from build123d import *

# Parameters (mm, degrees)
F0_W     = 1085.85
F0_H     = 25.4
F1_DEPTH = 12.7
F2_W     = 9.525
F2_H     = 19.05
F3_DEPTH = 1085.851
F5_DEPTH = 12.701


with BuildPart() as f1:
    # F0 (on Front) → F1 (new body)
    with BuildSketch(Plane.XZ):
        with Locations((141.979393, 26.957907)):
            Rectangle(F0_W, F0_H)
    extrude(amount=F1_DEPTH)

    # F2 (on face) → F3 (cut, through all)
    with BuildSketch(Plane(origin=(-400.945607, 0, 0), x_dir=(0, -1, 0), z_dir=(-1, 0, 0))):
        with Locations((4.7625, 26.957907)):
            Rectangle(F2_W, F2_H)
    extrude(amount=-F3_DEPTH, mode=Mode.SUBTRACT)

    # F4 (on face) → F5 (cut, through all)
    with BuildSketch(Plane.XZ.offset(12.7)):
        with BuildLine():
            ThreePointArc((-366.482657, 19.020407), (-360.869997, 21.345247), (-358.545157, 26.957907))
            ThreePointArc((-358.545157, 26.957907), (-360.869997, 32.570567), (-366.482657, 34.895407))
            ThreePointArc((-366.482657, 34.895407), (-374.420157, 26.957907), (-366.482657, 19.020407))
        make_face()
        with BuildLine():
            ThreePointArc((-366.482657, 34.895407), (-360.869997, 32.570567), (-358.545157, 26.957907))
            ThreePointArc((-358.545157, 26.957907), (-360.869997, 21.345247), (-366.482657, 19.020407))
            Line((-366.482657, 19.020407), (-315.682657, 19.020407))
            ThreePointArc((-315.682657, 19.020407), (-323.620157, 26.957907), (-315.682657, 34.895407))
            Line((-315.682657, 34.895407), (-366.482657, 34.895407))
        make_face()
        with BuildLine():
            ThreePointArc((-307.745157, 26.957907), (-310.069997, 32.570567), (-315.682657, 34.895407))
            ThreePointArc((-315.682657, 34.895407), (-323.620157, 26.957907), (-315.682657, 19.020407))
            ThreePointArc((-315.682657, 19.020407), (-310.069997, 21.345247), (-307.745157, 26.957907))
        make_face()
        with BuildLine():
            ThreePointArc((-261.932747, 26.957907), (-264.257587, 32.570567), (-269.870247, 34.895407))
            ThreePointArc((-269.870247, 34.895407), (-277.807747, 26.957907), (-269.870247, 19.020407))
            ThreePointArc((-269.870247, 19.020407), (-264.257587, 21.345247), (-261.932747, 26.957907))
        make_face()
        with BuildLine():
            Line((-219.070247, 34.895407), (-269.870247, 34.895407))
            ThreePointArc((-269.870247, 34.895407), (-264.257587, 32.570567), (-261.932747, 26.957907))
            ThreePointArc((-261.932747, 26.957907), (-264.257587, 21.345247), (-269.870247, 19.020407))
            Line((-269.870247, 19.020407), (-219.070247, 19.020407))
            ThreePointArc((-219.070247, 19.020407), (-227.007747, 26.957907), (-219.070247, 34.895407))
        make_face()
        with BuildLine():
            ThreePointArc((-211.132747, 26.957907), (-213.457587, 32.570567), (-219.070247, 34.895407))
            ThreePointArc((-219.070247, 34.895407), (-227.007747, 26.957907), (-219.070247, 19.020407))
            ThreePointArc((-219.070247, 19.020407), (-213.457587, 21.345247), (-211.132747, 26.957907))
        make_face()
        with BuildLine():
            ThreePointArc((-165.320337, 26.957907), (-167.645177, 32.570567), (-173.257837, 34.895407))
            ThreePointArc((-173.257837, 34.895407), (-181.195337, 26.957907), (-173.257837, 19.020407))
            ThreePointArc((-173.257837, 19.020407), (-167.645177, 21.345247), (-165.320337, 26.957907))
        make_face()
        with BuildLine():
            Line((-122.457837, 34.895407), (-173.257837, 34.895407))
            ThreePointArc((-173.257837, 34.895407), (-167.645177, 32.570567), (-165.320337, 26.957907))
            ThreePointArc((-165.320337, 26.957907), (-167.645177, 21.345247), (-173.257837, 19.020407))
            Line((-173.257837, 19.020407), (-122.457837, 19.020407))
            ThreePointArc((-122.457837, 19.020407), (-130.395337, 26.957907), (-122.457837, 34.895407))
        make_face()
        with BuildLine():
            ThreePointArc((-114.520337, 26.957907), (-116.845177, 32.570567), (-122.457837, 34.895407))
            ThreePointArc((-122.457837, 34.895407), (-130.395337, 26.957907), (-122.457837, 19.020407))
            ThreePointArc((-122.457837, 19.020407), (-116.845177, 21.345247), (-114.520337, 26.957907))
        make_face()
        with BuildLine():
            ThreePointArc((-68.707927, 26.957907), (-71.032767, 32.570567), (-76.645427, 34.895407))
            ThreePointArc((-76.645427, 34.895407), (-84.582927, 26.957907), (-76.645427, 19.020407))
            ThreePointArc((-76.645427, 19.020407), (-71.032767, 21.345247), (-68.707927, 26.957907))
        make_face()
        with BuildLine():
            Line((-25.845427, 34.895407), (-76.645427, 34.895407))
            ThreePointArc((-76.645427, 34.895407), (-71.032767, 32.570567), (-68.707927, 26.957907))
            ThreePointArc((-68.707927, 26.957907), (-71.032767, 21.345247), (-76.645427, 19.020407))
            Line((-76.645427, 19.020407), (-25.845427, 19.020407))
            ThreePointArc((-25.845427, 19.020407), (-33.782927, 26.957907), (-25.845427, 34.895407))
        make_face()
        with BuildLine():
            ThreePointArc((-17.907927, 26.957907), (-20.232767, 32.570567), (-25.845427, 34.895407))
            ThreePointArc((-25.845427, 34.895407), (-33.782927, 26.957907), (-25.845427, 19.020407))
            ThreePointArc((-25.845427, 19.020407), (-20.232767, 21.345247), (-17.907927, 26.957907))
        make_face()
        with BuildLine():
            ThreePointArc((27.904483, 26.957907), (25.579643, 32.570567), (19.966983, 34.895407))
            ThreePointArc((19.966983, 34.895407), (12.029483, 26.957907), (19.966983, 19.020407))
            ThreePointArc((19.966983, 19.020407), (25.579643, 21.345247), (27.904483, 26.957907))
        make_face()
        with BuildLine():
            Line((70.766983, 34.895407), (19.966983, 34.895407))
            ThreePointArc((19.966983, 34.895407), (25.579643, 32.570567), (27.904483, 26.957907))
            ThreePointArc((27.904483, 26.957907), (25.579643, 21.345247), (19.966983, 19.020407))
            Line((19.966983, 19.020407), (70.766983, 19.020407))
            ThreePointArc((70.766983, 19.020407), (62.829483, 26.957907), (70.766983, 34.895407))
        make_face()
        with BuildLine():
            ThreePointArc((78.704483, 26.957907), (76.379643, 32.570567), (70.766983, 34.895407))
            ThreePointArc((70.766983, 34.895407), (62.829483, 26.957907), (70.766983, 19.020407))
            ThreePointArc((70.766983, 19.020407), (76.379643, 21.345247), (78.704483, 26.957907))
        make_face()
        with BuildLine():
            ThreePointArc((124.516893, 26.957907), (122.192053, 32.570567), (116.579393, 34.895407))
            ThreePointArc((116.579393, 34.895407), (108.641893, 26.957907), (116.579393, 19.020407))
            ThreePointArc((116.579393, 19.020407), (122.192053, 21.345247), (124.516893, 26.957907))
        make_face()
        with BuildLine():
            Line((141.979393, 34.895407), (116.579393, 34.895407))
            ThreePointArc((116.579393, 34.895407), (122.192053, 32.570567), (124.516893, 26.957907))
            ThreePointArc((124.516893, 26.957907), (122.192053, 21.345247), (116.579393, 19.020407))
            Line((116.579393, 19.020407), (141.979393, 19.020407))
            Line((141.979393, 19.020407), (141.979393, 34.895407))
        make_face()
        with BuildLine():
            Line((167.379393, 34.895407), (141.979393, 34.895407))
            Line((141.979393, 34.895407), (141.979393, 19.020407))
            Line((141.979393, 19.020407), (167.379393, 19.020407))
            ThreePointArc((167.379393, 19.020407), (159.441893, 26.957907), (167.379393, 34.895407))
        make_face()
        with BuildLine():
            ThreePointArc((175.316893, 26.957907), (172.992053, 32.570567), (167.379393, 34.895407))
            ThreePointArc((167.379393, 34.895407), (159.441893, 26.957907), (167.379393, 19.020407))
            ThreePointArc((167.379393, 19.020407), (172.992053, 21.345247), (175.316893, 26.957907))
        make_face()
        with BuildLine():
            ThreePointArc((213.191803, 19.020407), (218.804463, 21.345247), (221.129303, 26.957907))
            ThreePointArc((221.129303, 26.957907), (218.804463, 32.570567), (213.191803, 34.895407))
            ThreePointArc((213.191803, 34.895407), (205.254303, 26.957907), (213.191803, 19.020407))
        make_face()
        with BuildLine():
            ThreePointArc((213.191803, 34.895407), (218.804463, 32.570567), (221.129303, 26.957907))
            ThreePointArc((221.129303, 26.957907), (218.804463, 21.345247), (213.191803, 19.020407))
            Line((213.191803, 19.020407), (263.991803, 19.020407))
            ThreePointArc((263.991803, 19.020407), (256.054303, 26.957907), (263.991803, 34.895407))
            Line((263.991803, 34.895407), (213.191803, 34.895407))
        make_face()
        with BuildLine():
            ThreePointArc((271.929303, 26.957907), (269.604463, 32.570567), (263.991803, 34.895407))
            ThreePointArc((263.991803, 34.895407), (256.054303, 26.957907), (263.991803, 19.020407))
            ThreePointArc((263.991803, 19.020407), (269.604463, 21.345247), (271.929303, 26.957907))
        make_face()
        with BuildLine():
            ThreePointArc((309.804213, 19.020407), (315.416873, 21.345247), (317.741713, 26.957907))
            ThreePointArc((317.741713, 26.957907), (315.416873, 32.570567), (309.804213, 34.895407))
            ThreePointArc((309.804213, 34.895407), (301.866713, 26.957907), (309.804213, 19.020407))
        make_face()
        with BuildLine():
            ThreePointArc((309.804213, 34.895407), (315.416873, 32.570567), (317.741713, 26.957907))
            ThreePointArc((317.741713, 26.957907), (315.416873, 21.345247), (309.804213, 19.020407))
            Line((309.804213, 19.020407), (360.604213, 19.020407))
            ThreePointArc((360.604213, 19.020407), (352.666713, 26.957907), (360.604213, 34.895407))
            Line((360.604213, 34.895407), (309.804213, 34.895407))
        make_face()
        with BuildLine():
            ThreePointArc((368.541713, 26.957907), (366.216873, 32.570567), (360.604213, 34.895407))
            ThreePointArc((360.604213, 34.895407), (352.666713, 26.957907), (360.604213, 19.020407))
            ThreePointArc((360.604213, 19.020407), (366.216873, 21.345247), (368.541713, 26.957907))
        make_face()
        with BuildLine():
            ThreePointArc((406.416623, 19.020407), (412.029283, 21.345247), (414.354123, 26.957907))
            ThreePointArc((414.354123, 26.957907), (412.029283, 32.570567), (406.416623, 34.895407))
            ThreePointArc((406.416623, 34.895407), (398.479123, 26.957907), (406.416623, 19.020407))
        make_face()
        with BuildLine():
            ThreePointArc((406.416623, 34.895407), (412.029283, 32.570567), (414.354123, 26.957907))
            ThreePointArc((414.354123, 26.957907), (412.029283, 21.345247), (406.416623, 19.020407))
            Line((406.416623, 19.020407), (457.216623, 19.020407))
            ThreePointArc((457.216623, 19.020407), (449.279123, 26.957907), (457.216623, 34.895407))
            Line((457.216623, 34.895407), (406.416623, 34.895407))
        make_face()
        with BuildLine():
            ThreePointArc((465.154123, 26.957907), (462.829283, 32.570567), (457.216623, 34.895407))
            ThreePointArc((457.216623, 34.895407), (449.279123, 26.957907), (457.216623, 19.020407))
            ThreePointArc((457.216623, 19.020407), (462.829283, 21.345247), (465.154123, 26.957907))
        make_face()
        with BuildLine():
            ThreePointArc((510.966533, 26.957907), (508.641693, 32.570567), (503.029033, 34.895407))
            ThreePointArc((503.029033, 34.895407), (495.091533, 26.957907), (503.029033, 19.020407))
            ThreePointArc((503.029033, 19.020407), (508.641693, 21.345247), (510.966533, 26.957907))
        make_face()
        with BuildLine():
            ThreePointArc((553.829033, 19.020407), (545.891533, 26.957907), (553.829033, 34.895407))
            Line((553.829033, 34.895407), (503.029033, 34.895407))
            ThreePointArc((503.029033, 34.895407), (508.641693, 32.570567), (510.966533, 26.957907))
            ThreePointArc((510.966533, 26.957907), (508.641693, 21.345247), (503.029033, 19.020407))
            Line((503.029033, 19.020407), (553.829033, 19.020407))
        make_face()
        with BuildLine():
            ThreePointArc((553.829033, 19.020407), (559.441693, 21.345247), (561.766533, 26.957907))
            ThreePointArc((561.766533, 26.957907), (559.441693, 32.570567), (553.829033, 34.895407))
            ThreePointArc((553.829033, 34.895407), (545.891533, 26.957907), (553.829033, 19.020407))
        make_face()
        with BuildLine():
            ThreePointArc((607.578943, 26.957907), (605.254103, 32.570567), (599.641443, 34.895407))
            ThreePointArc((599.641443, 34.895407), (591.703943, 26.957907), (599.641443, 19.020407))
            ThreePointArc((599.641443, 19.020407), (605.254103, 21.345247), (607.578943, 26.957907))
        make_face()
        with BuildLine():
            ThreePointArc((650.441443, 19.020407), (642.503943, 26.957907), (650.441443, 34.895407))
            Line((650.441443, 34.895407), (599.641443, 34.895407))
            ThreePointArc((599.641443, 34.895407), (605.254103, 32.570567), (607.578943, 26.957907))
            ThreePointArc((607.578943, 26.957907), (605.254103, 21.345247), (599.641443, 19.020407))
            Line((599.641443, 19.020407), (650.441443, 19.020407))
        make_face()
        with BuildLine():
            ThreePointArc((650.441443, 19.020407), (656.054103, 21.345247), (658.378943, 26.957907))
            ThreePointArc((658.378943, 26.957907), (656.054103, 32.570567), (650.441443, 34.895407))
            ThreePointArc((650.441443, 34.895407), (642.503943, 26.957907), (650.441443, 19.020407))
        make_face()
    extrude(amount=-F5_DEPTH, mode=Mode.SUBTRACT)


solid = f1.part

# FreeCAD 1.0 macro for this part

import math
import FreeCAD as App
import Part
import Sketcher
from FreeCAD import Vector
Q = App.Units.Quantity


def add_polygon(sketch, points):
    """Adds a closed chain of lines whose ends are joined by coincident constraints."""
    first, n = sketch.GeometryCount, len(points)
    for a, b in zip(points, points[1:] + points[:1]):
        sketch.addGeometry(Part.LineSegment(App.Vector(*a, 0), App.Vector(*b, 0)), False)
    for i in range(n):
        sketch.addConstraint(Sketcher.Constraint("Coincident", first + i, 2, first + (i + 1) % n, 1))

doc = App.newDocument("Part")
body = doc.addObject("PartDesign::Body", "Body")

# Sketch on XZ plane
sketch1 = body.newObject("Sketcher::SketchObject", "Sketch")
sketch1.AttachmentSupport = (doc.getObject("XZ_Plane"), [""])
sketch1.MapMode = "FlatFace"
add_polygon(sketch1, [(-400.945607, 39.657907), (-400.945607, 14.257907), (684.904393, 14.257907), (684.904393, 39.657907)])  # lines 0-3
sketch1.addConstraint([
    Sketcher.Constraint("Vertical", 0),
    Sketcher.Constraint("Horizontal", 1),
    Sketcher.Constraint("Vertical", 2),
    Sketcher.Constraint("Horizontal", 3),
    Sketcher.Constraint("DistanceY", 0, 2, 0, 1, Q("1 in")),
    Sketcher.Constraint("DistanceX", 1, 1, 1, 2, Q("42.75 in")),
    Sketcher.Constraint("DistanceX", 0, 2, -1, 1, 400.945607),
    Sketcher.Constraint("DistanceY", -1, 1, 0, 2, 14.257907),
])
pad1 = body.newObject("PartDesign::Pad", "Pad")
pad1.Profile = sketch1
pad1.Length = Q("0.5 in")

# Sketch on YZ plane
sketch2 = body.newObject("Sketcher::SketchObject", "Sketch001")
sketch2.AttachmentSupport = (doc.getObject("YZ_Plane"), [""])
sketch2.MapMode = "FlatFace"
sketch2.AttachmentOffset = App.Placement(Vector(0, 0, -400.945607), App.Rotation())
add_polygon(sketch2, [(0, 36.482907), (0, 17.432907), (-9.525, 17.432907), (-9.525, 36.482907)])  # lines 0-3
sketch2.addConstraint([
    Sketcher.Constraint("Vertical", 0),
    Sketcher.Constraint("Horizontal", 1),
    Sketcher.Constraint("Vertical", 2),
    Sketcher.Constraint("Horizontal", 3),
    Sketcher.Constraint("PointOnObject", 0, 2, -2),
    Sketcher.Constraint("DistanceY", 0, 2, 0, 1, Q("0.75 in")),
    Sketcher.Constraint("DistanceX", 1, 2, 1, 1, Q("0.375 in")),
    Sketcher.Constraint("DistanceY", -1, 1, 0, 2, 17.432907),
])
pocket1 = body.newObject("PartDesign::Pocket", "Pocket")
pocket1.Profile = sketch2
pocket1.Type = "ThroughAll"
pocket1.Reversed = True

# Sketch on XZ plane
sketch3 = body.newObject("Sketcher::SketchObject", "Sketch002")
sketch3.AttachmentSupport = (doc.getObject("XZ_Plane"), [""])
sketch3.MapMode = "FlatFace"
sketch3.AttachmentOffset = App.Placement(Vector(0, 0, 0.5 * 25.4), App.Rotation())
sketch3.addGeometry([
    Part.ArcOfCircle(Part.Circle(Vector(-366.482657, 26.957907, 0), Vector(0, 0, 1), 7.9375), math.radians(90), math.radians(270)),  # 0
    Part.LineSegment(Vector(-366.482657, 19.020407, 0), Vector(-315.682657, 19.020407, 0)),  # 1
    Part.ArcOfCircle(Part.Circle(Vector(-315.682657, 26.957907, 0), Vector(0, 0, 1), 7.9375), math.radians(-89.999998), math.radians(-0.000002)),  # 2
    Part.ArcOfCircle(Part.Circle(Vector(-315.682657, 26.957907, 0), Vector(0, 0, 1), 7.9375), math.radians(0.000002), math.radians(89.999998)),  # 3
    Part.LineSegment(Vector(-315.682657, 34.895407, 0), Vector(-366.482657, 34.895407, 0)),  # 4
    Part.ArcOfCircle(Part.Circle(Vector(-269.870247, 26.957907, 0), Vector(0, 0, 1), 7.9375), math.radians(90), math.radians(270)),  # 5
    Part.LineSegment(Vector(-269.870247, 19.020407, 0), Vector(-219.070247, 19.020407, 0)),  # 6
    Part.ArcOfCircle(Part.Circle(Vector(-219.070247, 26.957907, 0), Vector(0, 0, 1), 7.9375), math.radians(-89.999998), math.radians(-0.000002)),  # 7
    Part.ArcOfCircle(Part.Circle(Vector(-219.070247, 26.957907, 0), Vector(0, 0, 1), 7.9375), math.radians(0.000002), math.radians(89.999998)),  # 8
    Part.LineSegment(Vector(-219.070247, 34.895407, 0), Vector(-269.870247, 34.895407, 0)),  # 9
    Part.ArcOfCircle(Part.Circle(Vector(-173.257837, 26.957907, 0), Vector(0, 0, 1), 7.9375), math.radians(90), math.radians(270)),  # 10
    Part.LineSegment(Vector(-173.257837, 19.020407, 0), Vector(-122.457837, 19.020407, 0)),  # 11
    Part.ArcOfCircle(Part.Circle(Vector(-122.457837, 26.957907, 0), Vector(0, 0, 1), 7.9375), math.radians(-89.999998), math.radians(-0.000002)),  # 12
    Part.ArcOfCircle(Part.Circle(Vector(-122.457837, 26.957907, 0), Vector(0, 0, 1), 7.9375), math.radians(0.000002), math.radians(89.999998)),  # 13
    Part.LineSegment(Vector(-122.457837, 34.895407, 0), Vector(-173.257837, 34.895407, 0)),  # 14
    Part.ArcOfCircle(Part.Circle(Vector(-76.645427, 26.957907, 0), Vector(0, 0, 1), 7.9375), math.radians(90), math.radians(270)),  # 15
    Part.LineSegment(Vector(-76.645427, 19.020407, 0), Vector(-25.845427, 19.020407, 0)),  # 16
    Part.ArcOfCircle(Part.Circle(Vector(-25.845427, 26.957907, 0), Vector(0, 0, 1), 7.9375), math.radians(-89.999998), math.radians(-0.000002)),  # 17
    Part.ArcOfCircle(Part.Circle(Vector(-25.845427, 26.957907, 0), Vector(0, 0, 1), 7.9375), math.radians(0.000002), math.radians(89.999998)),  # 18
    Part.LineSegment(Vector(-25.845427, 34.895407, 0), Vector(-76.645427, 34.895407, 0)),  # 19
    Part.ArcOfCircle(Part.Circle(Vector(19.966983, 26.957907, 0), Vector(0, 0, 1), 7.9375), math.radians(90), math.radians(270)),  # 20
    Part.LineSegment(Vector(19.966983, 19.020407, 0), Vector(70.766983, 19.020407, 0)),  # 21
    Part.ArcOfCircle(Part.Circle(Vector(70.766983, 26.957907, 0), Vector(0, 0, 1), 7.9375), math.radians(-89.999998), math.radians(-0.000002)),  # 22
    Part.ArcOfCircle(Part.Circle(Vector(70.766983, 26.957907, 0), Vector(0, 0, 1), 7.9375), math.radians(0.000002), math.radians(89.999998)),  # 23
    Part.LineSegment(Vector(70.766983, 34.895407, 0), Vector(19.966983, 34.895407, 0)),  # 24
    Part.ArcOfCircle(Part.Circle(Vector(116.579393, 26.957907, 0), Vector(0, 0, 1), 7.9375), math.radians(90), math.radians(270)),  # 25
    Part.LineSegment(Vector(116.579393, 19.020407, 0), Vector(167.379393, 19.020407, 0)),  # 26
    Part.ArcOfCircle(Part.Circle(Vector(167.379393, 26.957907, 0), Vector(0, 0, 1), 7.9375), math.radians(-89.999998), math.radians(-0.000002)),  # 27
    Part.ArcOfCircle(Part.Circle(Vector(167.379393, 26.957907, 0), Vector(0, 0, 1), 7.9375), math.radians(0.000002), math.radians(89.999998)),  # 28
    Part.LineSegment(Vector(167.379393, 34.895407, 0), Vector(116.579393, 34.895407, 0)),  # 29
    Part.ArcOfCircle(Part.Circle(Vector(213.191803, 26.957907, 0), Vector(0, 0, 1), 7.9375), math.radians(90), math.radians(270)),  # 30
    Part.LineSegment(Vector(213.191803, 19.020407, 0), Vector(263.991803, 19.020407, 0)),  # 31
    Part.ArcOfCircle(Part.Circle(Vector(263.991803, 26.957907, 0), Vector(0, 0, 1), 7.9375), math.radians(-89.999998), math.radians(-0.000002)),  # 32
    Part.ArcOfCircle(Part.Circle(Vector(263.991803, 26.957907, 0), Vector(0, 0, 1), 7.9375), math.radians(0.000002), math.radians(89.999998)),  # 33
    Part.LineSegment(Vector(263.991803, 34.895407, 0), Vector(213.191803, 34.895407, 0)),  # 34
    Part.ArcOfCircle(Part.Circle(Vector(309.804213, 26.957907, 0), Vector(0, 0, 1), 7.9375), math.radians(90), math.radians(270)),  # 35
    Part.LineSegment(Vector(309.804213, 19.020407, 0), Vector(360.604213, 19.020407, 0)),  # 36
    Part.ArcOfCircle(Part.Circle(Vector(360.604213, 26.957907, 0), Vector(0, 0, 1), 7.9375), math.radians(-89.999998), math.radians(-0.000002)),  # 37
    Part.ArcOfCircle(Part.Circle(Vector(360.604213, 26.957907, 0), Vector(0, 0, 1), 7.9375), math.radians(0.000002), math.radians(89.999998)),  # 38
    Part.LineSegment(Vector(360.604213, 34.895407, 0), Vector(309.804213, 34.895407, 0)),  # 39
    Part.ArcOfCircle(Part.Circle(Vector(406.416623, 26.957907, 0), Vector(0, 0, 1), 7.9375), math.radians(90), math.radians(270)),  # 40
    Part.LineSegment(Vector(406.416623, 19.020407, 0), Vector(457.216623, 19.020407, 0)),  # 41
    Part.ArcOfCircle(Part.Circle(Vector(457.216623, 26.957907, 0), Vector(0, 0, 1), 7.9375), math.radians(-89.999998), math.radians(-0.000002)),  # 42
    Part.ArcOfCircle(Part.Circle(Vector(457.216623, 26.957907, 0), Vector(0, 0, 1), 7.9375), math.radians(0.000002), math.radians(89.999998)),  # 43
    Part.LineSegment(Vector(457.216623, 34.895407, 0), Vector(406.416623, 34.895407, 0)),  # 44
    Part.ArcOfCircle(Part.Circle(Vector(503.029033, 26.957907, 0), Vector(0, 0, 1), 7.9375), math.radians(90), math.radians(270)),  # 45
    Part.LineSegment(Vector(503.029033, 19.020407, 0), Vector(553.829033, 19.020407, 0)),  # 46
    Part.ArcOfCircle(Part.Circle(Vector(553.829033, 26.957907, 0), Vector(0, 0, 1), 7.9375), math.radians(-89.999998), math.radians(-0.000002)),  # 47
    Part.ArcOfCircle(Part.Circle(Vector(553.829033, 26.957907, 0), Vector(0, 0, 1), 7.9375), math.radians(0.000002), math.radians(89.999998)),  # 48
    Part.LineSegment(Vector(553.829033, 34.895407, 0), Vector(503.029033, 34.895407, 0)),  # 49
    Part.ArcOfCircle(Part.Circle(Vector(599.641443, 26.957907, 0), Vector(0, 0, 1), 7.9375), math.radians(90), math.radians(270)),  # 50
    Part.LineSegment(Vector(599.641443, 19.020407, 0), Vector(650.441443, 19.020407, 0)),  # 51
    Part.ArcOfCircle(Part.Circle(Vector(650.441443, 26.957907, 0), Vector(0, 0, 1), 7.9375), math.radians(-89.999998), math.radians(-0.000002)),  # 52
    Part.ArcOfCircle(Part.Circle(Vector(650.441443, 26.957907, 0), Vector(0, 0, 1), 7.9375), math.radians(0.000002), math.radians(89.999998)),  # 53
    Part.LineSegment(Vector(650.441443, 34.895407, 0), Vector(599.641443, 34.895407, 0)),  # 54
], False)
sketch3.addConstraint([
    Sketcher.Constraint("Tangent", 0, 2, 1, 1),
    Sketcher.Constraint("Tangent", 1, 2, 2, 1),
    Sketcher.Constraint("Tangent", 2, 2, 3, 1),
    Sketcher.Constraint("Tangent", 3, 2, 4, 1),
    Sketcher.Constraint("Tangent", 4, 2, 0, 1),
    Sketcher.Constraint("Tangent", 5, 2, 6, 1),
    Sketcher.Constraint("Tangent", 6, 2, 7, 1),
    Sketcher.Constraint("Tangent", 7, 2, 8, 1),
    Sketcher.Constraint("Tangent", 8, 2, 9, 1),
    Sketcher.Constraint("Tangent", 9, 2, 5, 1),
    Sketcher.Constraint("Tangent", 10, 2, 11, 1),
    Sketcher.Constraint("Tangent", 11, 2, 12, 1),
    Sketcher.Constraint("Tangent", 12, 2, 13, 1),
    Sketcher.Constraint("Tangent", 13, 2, 14, 1),
    Sketcher.Constraint("Tangent", 14, 2, 10, 1),
    Sketcher.Constraint("Tangent", 15, 2, 16, 1),
    Sketcher.Constraint("Tangent", 16, 2, 17, 1),
    Sketcher.Constraint("Tangent", 17, 2, 18, 1),
    Sketcher.Constraint("Tangent", 18, 2, 19, 1),
    Sketcher.Constraint("Tangent", 19, 2, 15, 1),
    Sketcher.Constraint("Tangent", 20, 2, 21, 1),
    Sketcher.Constraint("Tangent", 21, 2, 22, 1),
    Sketcher.Constraint("Tangent", 22, 2, 23, 1),
    Sketcher.Constraint("Tangent", 23, 2, 24, 1),
    Sketcher.Constraint("Tangent", 24, 2, 20, 1),
    Sketcher.Constraint("Tangent", 25, 2, 26, 1),
    Sketcher.Constraint("Tangent", 26, 2, 27, 1),
    Sketcher.Constraint("Tangent", 27, 2, 28, 1),
    Sketcher.Constraint("Tangent", 28, 2, 29, 1),
    Sketcher.Constraint("Tangent", 29, 2, 25, 1),
    Sketcher.Constraint("Tangent", 30, 2, 31, 1),
    Sketcher.Constraint("Tangent", 31, 2, 32, 1),
    Sketcher.Constraint("Tangent", 32, 2, 33, 1),
    Sketcher.Constraint("Tangent", 33, 2, 34, 1),
    Sketcher.Constraint("Tangent", 34, 2, 30, 1),
    Sketcher.Constraint("Tangent", 35, 2, 36, 1),
    Sketcher.Constraint("Tangent", 36, 2, 37, 1),
    Sketcher.Constraint("Tangent", 37, 2, 38, 1),
    Sketcher.Constraint("Tangent", 38, 2, 39, 1),
    Sketcher.Constraint("Tangent", 39, 2, 35, 1),
    Sketcher.Constraint("Tangent", 40, 2, 41, 1),
    Sketcher.Constraint("Tangent", 41, 2, 42, 1),
    Sketcher.Constraint("Tangent", 42, 2, 43, 1),
    Sketcher.Constraint("Tangent", 43, 2, 44, 1),
    Sketcher.Constraint("Tangent", 44, 2, 40, 1),
    Sketcher.Constraint("Tangent", 45, 2, 46, 1),
    Sketcher.Constraint("Tangent", 46, 2, 47, 1),
    Sketcher.Constraint("Tangent", 47, 2, 48, 1),
    Sketcher.Constraint("Tangent", 48, 2, 49, 1),
    Sketcher.Constraint("Tangent", 49, 2, 45, 1),
    Sketcher.Constraint("Tangent", 50, 2, 51, 1),
    Sketcher.Constraint("Tangent", 51, 2, 52, 1),
    Sketcher.Constraint("Tangent", 52, 2, 53, 1),
    Sketcher.Constraint("Tangent", 53, 2, 54, 1),
    Sketcher.Constraint("Tangent", 54, 2, 50, 1),
    Sketcher.Constraint("Horizontal", 1),
    Sketcher.Constraint("Horizontal", 4),
    Sketcher.Constraint("Horizontal", 6),
    Sketcher.Constraint("Horizontal", 9),
    Sketcher.Constraint("Horizontal", 11),
    Sketcher.Constraint("Horizontal", 14),
    Sketcher.Constraint("Horizontal", 16),
    Sketcher.Constraint("Horizontal", 19),
    Sketcher.Constraint("Horizontal", 21),
    Sketcher.Constraint("Horizontal", 24),
    Sketcher.Constraint("Horizontal", 26),
    Sketcher.Constraint("Horizontal", 29),
    Sketcher.Constraint("Horizontal", 31),
    Sketcher.Constraint("Horizontal", 34),
    Sketcher.Constraint("Horizontal", 36),
    Sketcher.Constraint("Horizontal", 39),
    Sketcher.Constraint("Horizontal", 41),
    Sketcher.Constraint("Horizontal", 44),
    Sketcher.Constraint("Horizontal", 46),
    Sketcher.Constraint("Horizontal", 49),
    Sketcher.Constraint("Horizontal", 51),
    Sketcher.Constraint("Horizontal", 54),
    Sketcher.Constraint("Equal", 0, 2),
    Sketcher.Constraint("Equal", 3, 5),
    Sketcher.Constraint("Equal", 5, 7),
    Sketcher.Constraint("Equal", 8, 10),
    Sketcher.Constraint("Equal", 10, 12),
    Sketcher.Constraint("Equal", 13, 15),
    Sketcher.Constraint("Equal", 15, 17),
    Sketcher.Constraint("Equal", 18, 20),
    Sketcher.Constraint("Equal", 20, 22),
    Sketcher.Constraint("Equal", 23, 25),
    Sketcher.Constraint("Equal", 25, 27),
    Sketcher.Constraint("Equal", 28, 30),
    Sketcher.Constraint("Equal", 30, 32),
    Sketcher.Constraint("Equal", 33, 35),
    Sketcher.Constraint("Equal", 35, 37),
    Sketcher.Constraint("Equal", 38, 40),
    Sketcher.Constraint("Equal", 40, 42),
    Sketcher.Constraint("Equal", 43, 45),
    Sketcher.Constraint("Equal", 45, 47),
    Sketcher.Constraint("Equal", 48, 50),
    Sketcher.Constraint("Equal", 50, 52),
    Sketcher.Constraint("Horizontal", 3, 3, 5, 3),
    Sketcher.Constraint("Horizontal", 8, 3, 10, 3),
    Sketcher.Constraint("Horizontal", 13, 3, 15, 3),
    Sketcher.Constraint("Horizontal", 18, 3, 20, 3),
    Sketcher.Constraint("Horizontal", 23, 3, 25, 3),
    Sketcher.Constraint("Horizontal", 28, 3, 30, 3),
    Sketcher.Constraint("Horizontal", 33, 3, 35, 3),
    Sketcher.Constraint("Horizontal", 38, 3, 40, 3),
    Sketcher.Constraint("Horizontal", 43, 3, 45, 3),
    Sketcher.Constraint("Horizontal", 48, 3, 50, 3),
    Sketcher.Constraint("Horizontal", 53, 3, 2, 2),
    Sketcher.Constraint("Horizontal", 2, 2, 7, 2),
    Sketcher.Constraint("Horizontal", 7, 2, 12, 2),
    Sketcher.Constraint("Horizontal", 12, 2, 17, 2),
    Sketcher.Constraint("Horizontal", 17, 2, 22, 2),
    Sketcher.Constraint("Horizontal", 22, 2, 27, 2),
    Sketcher.Constraint("Horizontal", 27, 2, 32, 2),
    Sketcher.Constraint("Horizontal", 32, 2, 37, 2),
    Sketcher.Constraint("Horizontal", 37, 2, 42, 2),
    Sketcher.Constraint("Horizontal", 42, 2, 47, 2),
    Sketcher.Constraint("Horizontal", 47, 2, 52, 2),
    Sketcher.Constraint("Equal", 4, 6),
    Sketcher.Constraint("Equal", 9, 11),
    Sketcher.Constraint("Equal", 14, 16),
    Sketcher.Constraint("Equal", 19, 21),
    Sketcher.Constraint("Equal", 24, 26),
    Sketcher.Constraint("Equal", 29, 31),
    Sketcher.Constraint("Equal", 34, 36),
    Sketcher.Constraint("Equal", 39, 41),
    Sketcher.Constraint("Equal", 44, 46),
    Sketcher.Constraint("Equal", 49, 51),
    Sketcher.Constraint("DistanceX", 1, 1, 1, 2, Q("2 in")),
    Sketcher.Constraint("Radius", 0, Q("0.3125 in")),
    Sketcher.Constraint("DistanceX", 0, 3, -1, 1, 366.482657),
    Sketcher.Constraint("DistanceY", -1, 1, 0, 3, 26.957907),
    Sketcher.Constraint("DistanceX", 5, 3, -1, 1, 269.870247),
    Sketcher.Constraint("DistanceX", 10, 3, -1, 1, 173.257837),
    Sketcher.Constraint("DistanceX", 15, 3, -1, 1, 76.645427),
    Sketcher.Constraint("DistanceX", -1, 1, 20, 3, 19.966983),
    Sketcher.Constraint("DistanceX", -1, 1, 25, 3, 116.579393),
    Sketcher.Constraint("DistanceX", -1, 1, 30, 3, 213.191803),
    Sketcher.Constraint("DistanceX", -1, 1, 35, 3, 309.804213),
    Sketcher.Constraint("DistanceX", -1, 1, 40, 3, 406.416623),
    Sketcher.Constraint("DistanceX", -1, 1, 45, 3, 503.029033),
    Sketcher.Constraint("DistanceX", -1, 1, 50, 3, 599.641443),
])
pocket2 = body.newObject("PartDesign::Pocket", "Pocket001")
pocket2.Profile = sketch3
pocket2.Type = "ThroughAll"

doc.recompute()
